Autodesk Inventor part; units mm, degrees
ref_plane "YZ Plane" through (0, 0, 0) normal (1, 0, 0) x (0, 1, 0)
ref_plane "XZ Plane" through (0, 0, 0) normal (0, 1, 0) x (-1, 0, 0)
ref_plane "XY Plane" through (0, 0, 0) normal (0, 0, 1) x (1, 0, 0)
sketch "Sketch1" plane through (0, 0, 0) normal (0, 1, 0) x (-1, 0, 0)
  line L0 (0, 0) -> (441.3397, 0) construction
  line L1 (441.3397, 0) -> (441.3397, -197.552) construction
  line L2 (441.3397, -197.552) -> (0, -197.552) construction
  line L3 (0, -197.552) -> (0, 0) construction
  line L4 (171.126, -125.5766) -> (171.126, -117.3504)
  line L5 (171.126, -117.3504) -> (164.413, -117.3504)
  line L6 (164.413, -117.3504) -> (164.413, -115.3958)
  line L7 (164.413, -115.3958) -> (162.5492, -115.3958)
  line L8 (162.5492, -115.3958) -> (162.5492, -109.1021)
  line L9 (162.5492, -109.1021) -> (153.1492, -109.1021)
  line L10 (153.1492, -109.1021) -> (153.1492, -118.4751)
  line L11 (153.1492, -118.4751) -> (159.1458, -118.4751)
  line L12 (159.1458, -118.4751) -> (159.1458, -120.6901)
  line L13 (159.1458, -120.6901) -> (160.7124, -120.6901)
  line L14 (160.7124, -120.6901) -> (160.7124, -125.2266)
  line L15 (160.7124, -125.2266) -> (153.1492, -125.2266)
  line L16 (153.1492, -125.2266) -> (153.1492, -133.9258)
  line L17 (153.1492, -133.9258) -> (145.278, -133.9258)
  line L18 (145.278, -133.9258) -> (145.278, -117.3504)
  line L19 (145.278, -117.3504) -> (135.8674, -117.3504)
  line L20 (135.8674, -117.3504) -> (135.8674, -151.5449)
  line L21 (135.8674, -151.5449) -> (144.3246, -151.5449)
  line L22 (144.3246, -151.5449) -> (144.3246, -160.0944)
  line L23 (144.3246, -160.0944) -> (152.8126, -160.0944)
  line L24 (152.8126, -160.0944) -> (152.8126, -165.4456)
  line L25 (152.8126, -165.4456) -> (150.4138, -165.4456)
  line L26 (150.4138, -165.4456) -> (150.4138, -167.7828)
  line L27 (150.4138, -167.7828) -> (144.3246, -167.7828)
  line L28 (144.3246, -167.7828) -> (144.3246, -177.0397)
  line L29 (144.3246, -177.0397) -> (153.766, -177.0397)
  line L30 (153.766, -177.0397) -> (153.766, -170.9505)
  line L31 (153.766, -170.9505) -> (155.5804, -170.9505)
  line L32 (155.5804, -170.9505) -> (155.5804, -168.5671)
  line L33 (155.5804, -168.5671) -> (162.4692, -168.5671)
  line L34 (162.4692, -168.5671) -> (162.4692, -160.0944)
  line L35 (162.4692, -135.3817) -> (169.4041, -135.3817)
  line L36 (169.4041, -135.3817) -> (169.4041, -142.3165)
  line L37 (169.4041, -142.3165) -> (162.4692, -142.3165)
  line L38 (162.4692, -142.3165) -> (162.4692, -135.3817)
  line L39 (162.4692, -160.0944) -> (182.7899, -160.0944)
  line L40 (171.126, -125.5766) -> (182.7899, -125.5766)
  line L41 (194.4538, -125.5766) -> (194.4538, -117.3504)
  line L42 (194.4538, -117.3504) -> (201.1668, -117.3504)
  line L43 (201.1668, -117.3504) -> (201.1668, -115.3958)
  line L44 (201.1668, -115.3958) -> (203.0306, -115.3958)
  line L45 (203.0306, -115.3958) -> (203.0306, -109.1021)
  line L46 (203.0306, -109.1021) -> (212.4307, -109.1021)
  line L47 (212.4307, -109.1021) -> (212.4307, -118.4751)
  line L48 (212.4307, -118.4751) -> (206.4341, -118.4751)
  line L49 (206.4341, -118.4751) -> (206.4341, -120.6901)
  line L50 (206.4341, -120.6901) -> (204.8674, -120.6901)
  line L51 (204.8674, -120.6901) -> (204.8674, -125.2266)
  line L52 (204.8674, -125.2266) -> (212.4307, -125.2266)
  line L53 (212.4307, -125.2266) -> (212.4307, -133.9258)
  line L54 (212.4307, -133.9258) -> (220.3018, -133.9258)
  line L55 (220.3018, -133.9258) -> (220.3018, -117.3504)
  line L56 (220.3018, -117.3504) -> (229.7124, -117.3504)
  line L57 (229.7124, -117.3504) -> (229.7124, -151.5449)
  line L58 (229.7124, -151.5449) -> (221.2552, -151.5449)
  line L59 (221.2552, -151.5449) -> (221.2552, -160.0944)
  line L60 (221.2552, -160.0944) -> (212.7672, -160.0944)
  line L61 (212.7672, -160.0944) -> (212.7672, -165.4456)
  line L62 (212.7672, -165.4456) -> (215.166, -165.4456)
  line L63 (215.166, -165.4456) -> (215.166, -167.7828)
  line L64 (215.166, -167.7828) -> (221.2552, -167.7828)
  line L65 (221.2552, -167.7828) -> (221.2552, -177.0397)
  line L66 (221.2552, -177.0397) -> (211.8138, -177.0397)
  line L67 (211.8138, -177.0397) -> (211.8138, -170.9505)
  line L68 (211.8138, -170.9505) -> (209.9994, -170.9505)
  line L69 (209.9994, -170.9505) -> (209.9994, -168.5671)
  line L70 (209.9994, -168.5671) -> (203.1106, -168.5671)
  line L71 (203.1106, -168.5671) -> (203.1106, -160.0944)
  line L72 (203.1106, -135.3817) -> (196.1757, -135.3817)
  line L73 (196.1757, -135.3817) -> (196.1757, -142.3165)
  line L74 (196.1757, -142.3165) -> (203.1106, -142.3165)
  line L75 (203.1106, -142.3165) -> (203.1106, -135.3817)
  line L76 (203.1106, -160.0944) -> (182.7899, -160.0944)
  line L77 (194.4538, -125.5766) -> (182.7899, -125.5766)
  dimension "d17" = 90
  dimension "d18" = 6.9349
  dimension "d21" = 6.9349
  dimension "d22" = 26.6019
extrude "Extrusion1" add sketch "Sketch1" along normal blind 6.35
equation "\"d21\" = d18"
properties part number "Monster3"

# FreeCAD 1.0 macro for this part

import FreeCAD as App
import Part
import Sketcher
Q = App.Units.Quantity


def add_polygon(sketch, points):
    """Adds a closed chain of lines whose ends are joined by coincident constraints."""
    first, n = sketch.GeometryCount, len(points)
    for a, b in zip(points, points[1:] + points[:1]):
        sketch.addGeometry(Part.LineSegment(App.Vector(*a, 0), App.Vector(*b, 0)), False)
    for i in range(n):
        sketch.addConstraint(Sketcher.Constraint("Coincident", first + i, 2, first + (i + 1) % n, 1))

doc = App.newDocument("Part")
body = doc.addObject("PartDesign::Body", "Body")

sketch1 = doc.addObject("Sketcher::SketchObject", "Sketch")
body.addObject(sketch1)
sketch1.AttachmentSupport = (doc.XZ_Plane, [""])
sketch1.MapMode = "FlatFace"
add_polygon(sketch1, [(-194.5, -125.6), (-171.1, -125.6), (-171.1, -117.4), (-164.4, -117.4), (-164.4, -115.4), (-162.5, -115.4), (-162.5, -109.1), (-153.1, -109.1), (-153.1, -118.5), (-159.1, -118.5), (-159.1, -120.7), (-160.7, -120.7), (-160.7, -125.2), (-153.1, -125.2), (-153.1, -133.9), (-145.3, -133.9), (-145.3, -117.4), (-135.9, -117.4), (-135.9, -151.5), (-144.3, -151.5), (-144.3, -160.1), (-152.8, -160.1), (-152.8, -165.4), (-150.4, -165.4), (-150.4, -167.8), (-144.3, -167.8), (-144.3, -177), (-153.8, -177), (-153.8, -171), (-155.6, -171), (-155.6, -168.6), (-162.5, -168.6), (-162.5, -160.1), (-203.1, -160.1), (-203.1, -168.6), (-210, -168.6), (-210, -171), (-211.8, -171), (-211.8, -177), (-221.3, -177), (-221.3, -167.8), (-215.2, -167.8), (-215.2, -165.4), (-212.8, -165.4), (-212.8, -160.1), (-221.3, -160.1), (-221.3, -151.5), (-229.7, -151.5), (-229.7, -117.4), (-220.3, -117.4), (-220.3, -133.9), (-212.4, -133.9), (-212.4, -125.2), (-204.9, -125.2), (-204.9, -120.7), (-206.4, -120.7), (-206.4, -118.5), (-212.4, -118.5), (-212.4, -109.1), (-203, -109.1), (-203, -115.4), (-201.2, -115.4), (-201.2, -117.4), (-194.5, -117.4)])
add_polygon(sketch1, [(-162.5, -142.3), (-162.5, -135.4), (-169.4, -135.4), (-169.4, -142.3)])
add_polygon(sketch1, [(-196.2, -135.4), (-203.1, -135.4), (-203.1, -142.3), (-196.2, -142.3)])
sketch1.addConstraint(Sketcher.Constraint("Horizontal", 0))
sketch1.addConstraint(Sketcher.Constraint("Vertical", 1))
sketch1.addConstraint(Sketcher.Constraint("Horizontal", 2))
sketch1.addConstraint(Sketcher.Constraint("Vertical", 3))
sketch1.addConstraint(Sketcher.Constraint("Horizontal", 4))
sketch1.addConstraint(Sketcher.Constraint("Vertical", 5))
sketch1.addConstraint(Sketcher.Constraint("Horizontal", 6))
sketch1.addConstraint(Sketcher.Constraint("Vertical", 7))
sketch1.addConstraint(Sketcher.Constraint("Horizontal", 8))
sketch1.addConstraint(Sketcher.Constraint("Vertical", 9))
sketch1.addConstraint(Sketcher.Constraint("Horizontal", 10))
sketch1.addConstraint(Sketcher.Constraint("Vertical", 11))
sketch1.addConstraint(Sketcher.Constraint("Horizontal", 12))
sketch1.addConstraint(Sketcher.Constraint("Vertical", 13))
sketch1.addConstraint(Sketcher.Constraint("Horizontal", 14))
sketch1.addConstraint(Sketcher.Constraint("Vertical", 15))
sketch1.addConstraint(Sketcher.Constraint("Horizontal", 16))
sketch1.addConstraint(Sketcher.Constraint("Vertical", 17))
sketch1.addConstraint(Sketcher.Constraint("Horizontal", 18))
sketch1.addConstraint(Sketcher.Constraint("Vertical", 19))
sketch1.addConstraint(Sketcher.Constraint("Horizontal", 20))
sketch1.addConstraint(Sketcher.Constraint("Vertical", 21))
sketch1.addConstraint(Sketcher.Constraint("Horizontal", 22))
sketch1.addConstraint(Sketcher.Constraint("Vertical", 23))
sketch1.addConstraint(Sketcher.Constraint("Horizontal", 24))
sketch1.addConstraint(Sketcher.Constraint("Vertical", 25))
sketch1.addConstraint(Sketcher.Constraint("Horizontal", 26))
sketch1.addConstraint(Sketcher.Constraint("Vertical", 27))
sketch1.addConstraint(Sketcher.Constraint("Horizontal", 28))
sketch1.addConstraint(Sketcher.Constraint("Vertical", 29))
sketch1.addConstraint(Sketcher.Constraint("Horizontal", 30))
sketch1.addConstraint(Sketcher.Constraint("Vertical", 31))
sketch1.addConstraint(Sketcher.Constraint("Horizontal", 32))
sketch1.addConstraint(Sketcher.Constraint("Vertical", 33))
sketch1.addConstraint(Sketcher.Constraint("Horizontal", 34))
sketch1.addConstraint(Sketcher.Constraint("Vertical", 35))
sketch1.addConstraint(Sketcher.Constraint("Horizontal", 36))
sketch1.addConstraint(Sketcher.Constraint("Vertical", 37))
sketch1.addConstraint(Sketcher.Constraint("Horizontal", 38))
sketch1.addConstraint(Sketcher.Constraint("Vertical", 39))
sketch1.addConstraint(Sketcher.Constraint("Horizontal", 40))
sketch1.addConstraint(Sketcher.Constraint("Vertical", 41))
sketch1.addConstraint(Sketcher.Constraint("Horizontal", 42))
sketch1.addConstraint(Sketcher.Constraint("Vertical", 43))
sketch1.addConstraint(Sketcher.Constraint("Horizontal", 44))
sketch1.addConstraint(Sketcher.Constraint("Vertical", 45))
sketch1.addConstraint(Sketcher.Constraint("Horizontal", 46))
sketch1.addConstraint(Sketcher.Constraint("Vertical", 47))
sketch1.addConstraint(Sketcher.Constraint("Horizontal", 48))
sketch1.addConstraint(Sketcher.Constraint("Vertical", 49))
sketch1.addConstraint(Sketcher.Constraint("Horizontal", 50))
sketch1.addConstraint(Sketcher.Constraint("Vertical", 51))
sketch1.addConstraint(Sketcher.Constraint("Horizontal", 52))
sketch1.addConstraint(Sketcher.Constraint("Vertical", 53))
sketch1.addConstraint(Sketcher.Constraint("Horizontal", 54))
sketch1.addConstraint(Sketcher.Constraint("Vertical", 55))
sketch1.addConstraint(Sketcher.Constraint("Horizontal", 56))
sketch1.addConstraint(Sketcher.Constraint("Vertical", 57))
sketch1.addConstraint(Sketcher.Constraint("Horizontal", 58))
sketch1.addConstraint(Sketcher.Constraint("Vertical", 59))
sketch1.addConstraint(Sketcher.Constraint("Horizontal", 60))
sketch1.addConstraint(Sketcher.Constraint("Vertical", 61))
sketch1.addConstraint(Sketcher.Constraint("Horizontal", 62))
sketch1.addConstraint(Sketcher.Constraint("Vertical", 63))
sketch1.addConstraint(Sketcher.Constraint("Vertical", 64))
sketch1.addConstraint(Sketcher.Constraint("Horizontal", 65))
sketch1.addConstraint(Sketcher.Constraint("Vertical", 66))
sketch1.addConstraint(Sketcher.Constraint("Horizontal", 67))
sketch1.addConstraint(Sketcher.Constraint("Horizontal", 68))
sketch1.addConstraint(Sketcher.Constraint("Vertical", 69))
sketch1.addConstraint(Sketcher.Constraint("Horizontal", 70))
sketch1.addConstraint(Sketcher.Constraint("Vertical", 71))
sketch1.addConstraint(Sketcher.Constraint("Horizontal", 2, 2, 15, 2))
sketch1.addConstraint(Sketcher.Constraint("Horizontal", 20, 2, 31, 2))
sketch1.addConstraint(Sketcher.Constraint("Horizontal", 30, 2, 33, 2))
sketch1.addConstraint(Sketcher.Constraint("Horizontal", 28, 2, 35, 2))
sketch1.addConstraint(Sketcher.Constraint("Horizontal", 26, 2, 37, 2))
sketch1.addConstraint(Sketcher.Constraint("Horizontal", 24, 2, 39, 2))
sketch1.addConstraint(Sketcher.Constraint("Horizontal", 22, 2, 41, 2))
sketch1.addConstraint(Sketcher.Constraint("Horizontal", 32, 2, 43, 2))
sketch1.addConstraint(Sketcher.Constraint("Horizontal", 18, 2, 45, 2))
sketch1.addConstraint(Sketcher.Constraint("Horizontal", 16, 2, 47, 2))
sketch1.addConstraint(Sketcher.Constraint("Horizontal", 14, 2, 49, 2))
sketch1.addConstraint(Sketcher.Constraint("Horizontal", 12, 2, 51, 2))
sketch1.addConstraint(Sketcher.Constraint("Horizontal", 10, 2, 53, 2))
sketch1.addConstraint(Sketcher.Constraint("Horizontal", 8, 2, 55, 2))
sketch1.addConstraint(Sketcher.Constraint("Horizontal", 6, 2, 57, 2))
sketch1.addConstraint(Sketcher.Constraint("Horizontal", 4, 2, 59, 2))
sketch1.addConstraint(Sketcher.Constraint("Horizontal", 48, 2, 61, 2))
sketch1.addConstraint(Sketcher.Constraint("Horizontal", 65, 2, 68, 2))
sketch1.addConstraint(Sketcher.Constraint("Horizontal", 67, 2, 69, 2))
sketch1.addConstraint(Sketcher.Constraint("Vertical", 7, 2, 12, 2))
sketch1.addConstraint(Sketcher.Constraint("Vertical", 19, 2, 24, 2))
sketch1.addConstraint(Sketcher.Constraint("Vertical", 39, 2, 44, 2))
sketch1.addConstraint(Sketcher.Constraint("Vertical", 51, 2, 56, 2))
sketch1.addConstraint(Sketcher.Constraint("Vertical", 31, 2, 64, 2))
sketch1.addConstraint(Sketcher.Constraint("Vertical", 33, 2, 68, 2))
sketch1.addConstraint(Sketcher.Constraint("Equal", 30, 34))
sketch1.addConstraint(Sketcher.Constraint("Equal", 28, 36))
sketch1.addConstraint(Sketcher.Constraint("Equal", 26, 38))
sketch1.addConstraint(Sketcher.Constraint("Equal", 24, 40))
sketch1.addConstraint(Sketcher.Constraint("Equal", 22, 42))
sketch1.addConstraint(Sketcher.Constraint("Equal", 18, 46))
sketch1.addConstraint(Sketcher.Constraint("Equal", 16, 48))
sketch1.addConstraint(Sketcher.Constraint("Equal", 14, 50))
sketch1.addConstraint(Sketcher.Constraint("Equal", 12, 52))
sketch1.addConstraint(Sketcher.Constraint("Equal", 10, 54))
sketch1.addConstraint(Sketcher.Constraint("Equal", 6, 58))
sketch1.addConstraint(Sketcher.Constraint("Equal", 4, 60))
sketch1.addConstraint(Sketcher.Constraint("Equal", 2, 62))
sketch1.addConstraint(Sketcher.Constraint("Equal", 67, 68))
sketch1.addConstraint(Sketcher.Constraint("Equal", 40, 27))
sketch1.addConstraint(Sketcher.Constraint("Equal", 70, 64))
sketch1.addConstraint(Sketcher.Constraint("DistanceX", 65, 2, 65, 1, Q("6.935 mm")))
sketch1.addConstraint(Sketcher.Constraint("DistanceX", 6, 1, 6, 2, Q("9.4 mm")))
sketch1.addConstraint(Sketcher.Constraint("DistanceX", 2, 1, 2, 2, Q("6.713 mm")))
sketch1.addConstraint(Sketcher.Constraint("DistanceX", 20, 2, 20, 1, Q("8.488 mm")))
sketch1.addConstraint(Sketcher.Constraint("DistanceX", 50, 1, 50, 2, Q("7.871 mm")))
sketch1.addConstraint(Sketcher.Constraint("DistanceY", 7, 2, 7, 1, Q("9.373 mm")))
sketch1.addConstraint(Sketcher.Constraint("DistanceY", 9, 2, 9, 1, Q("2.215 mm")))
sketch1.addConstraint(Sketcher.Constraint("DistanceY", 25, 2, 25, 1, Q("9.257 mm")))
sketch1.addConstraint(Sketcher.Constraint("DistanceY", 9, 2, -1, 1, Q("120.69 mm")))
sketch1.addConstraint(Sketcher.Constraint("DistanceX", 0, 1, 0, 2, Q("23.3278 mm")))
sketch1.addConstraint(Sketcher.Constraint("DistanceX", 4, 1, 4, 2, Q("1.8638 mm")))
sketch1.addConstraint(Sketcher.Constraint("DistanceX", 8, 2, 8, 1, Q("5.9966 mm")))
sketch1.addConstraint(Sketcher.Constraint("DistanceX", 10, 2, 10, 1, Q("1.5666 mm")))
sketch1.addConstraint(Sketcher.Constraint("DistanceX", 16, 1, 16, 2, Q("9.4106 mm")))
sketch1.addConstraint(Sketcher.Constraint("DistanceX", 18, 2, 18, 1, Q("8.4572 mm")))
sketch1.addConstraint(Sketcher.Constraint("DistanceX", 22, 1, 22, 2, Q("2.3988 mm")))
sketch1.addConstraint(Sketcher.Constraint("DistanceX", 26, 2, 26, 1, Q("9.4414 mm")))
sketch1.addConstraint(Sketcher.Constraint("DistanceX", 28, 2, 28, 1, Q("1.8144 mm")))
sketch1.addConstraint(Sketcher.Constraint("DistanceX", 30, 2, 30, 1, Q("6.8888 mm")))
sketch1.addConstraint(Sketcher.Constraint("DistanceY", 1, 1, 1, 2, Q("8.2262 mm")))
sketch1.addConstraint(Sketcher.Constraint("DistanceY", 3, 1, 3, 2, Q("1.9546 mm")))
sketch1.addConstraint(Sketcher.Constraint("DistanceY", 5, 1, 5, 2, Q("6.2937 mm")))
sketch1.addConstraint(Sketcher.Constraint("DistanceY", 11, 2, 11, 1, Q("4.5365 mm")))
sketch1.addConstraint(Sketcher.Constraint("DistanceY", 13, 2, 13, 1, Q("8.6992 mm")))
sketch1.addConstraint(Sketcher.Constraint("DistanceY", 17, 2, 17, 1, Q("34.1945 mm")))
sketch1.addConstraint(Sketcher.Constraint("DistanceY", 19, 2, 19, 1, Q("8.5495 mm")))
sketch1.addConstraint(Sketcher.Constraint("DistanceY", 21, 2, 21, 1, Q("5.3512 mm")))
sketch1.addConstraint(Sketcher.Constraint("DistanceY", 23, 2, 23, 1, Q("2.3372 mm")))
sketch1.addConstraint(Sketcher.Constraint("DistanceY", 29, 1, 29, 2, Q("2.3834 mm")))
sketch1.addConstraint(Sketcher.Constraint("DistanceX", 0, 2, -1, 1, Q("171.126 mm")))
sketch1.addConstraint(Sketcher.Constraint("DistanceY", 64, 2, -1, 1, Q("135.3817 mm")))
pad1 = doc.addObject("PartDesign::Pad", "Pad")
body.addObject(pad1)
pad1.Profile = sketch1
pad1.Length = 6.35
pad1.Reversed = True

doc.recompute()
